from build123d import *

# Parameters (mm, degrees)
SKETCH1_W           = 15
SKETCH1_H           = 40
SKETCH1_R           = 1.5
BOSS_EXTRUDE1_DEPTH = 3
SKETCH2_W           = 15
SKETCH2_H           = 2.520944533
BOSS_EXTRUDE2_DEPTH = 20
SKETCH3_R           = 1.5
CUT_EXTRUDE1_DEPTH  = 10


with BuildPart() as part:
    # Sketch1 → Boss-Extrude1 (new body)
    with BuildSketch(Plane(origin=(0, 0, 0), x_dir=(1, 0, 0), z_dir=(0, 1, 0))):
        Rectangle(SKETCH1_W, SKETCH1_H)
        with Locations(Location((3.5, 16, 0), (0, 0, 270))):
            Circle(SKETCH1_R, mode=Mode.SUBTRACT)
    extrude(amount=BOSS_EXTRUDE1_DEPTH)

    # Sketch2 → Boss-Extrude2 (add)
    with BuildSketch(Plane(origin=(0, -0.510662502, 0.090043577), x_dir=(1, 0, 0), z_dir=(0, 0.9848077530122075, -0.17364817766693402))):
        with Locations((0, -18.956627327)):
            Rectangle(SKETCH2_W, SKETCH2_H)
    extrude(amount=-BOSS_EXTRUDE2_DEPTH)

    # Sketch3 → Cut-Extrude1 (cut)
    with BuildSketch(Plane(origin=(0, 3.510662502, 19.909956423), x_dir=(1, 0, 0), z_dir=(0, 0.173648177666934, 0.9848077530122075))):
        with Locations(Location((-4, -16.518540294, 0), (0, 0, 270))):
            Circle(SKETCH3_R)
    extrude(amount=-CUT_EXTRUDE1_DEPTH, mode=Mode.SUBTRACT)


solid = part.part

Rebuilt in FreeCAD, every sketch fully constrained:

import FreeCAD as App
import Part
import Sketcher
Q = App.Units.Quantity


def add_polygon(sketch, points):
    """Adds a closed chain of lines whose ends are joined by coincident constraints."""
    first, n = sketch.GeometryCount, len(points)
    for a, b in zip(points, points[1:] + points[:1]):
        sketch.addGeometry(Part.LineSegment(App.Vector(*a, 0), App.Vector(*b, 0)), False)
    for i in range(n):
        sketch.addConstraint(Sketcher.Constraint("Coincident", first + i, 2, first + (i + 1) % n, 1))

doc = App.newDocument("Part")
body = doc.addObject("PartDesign::Body", "Body")

# Sketch on XZ plane
sketch1 = doc.addObject("Sketcher::SketchObject", "Sketch")
body.addObject(sketch1)
sketch1.AttachmentSupport = (doc.XZ_Plane, [""])
sketch1.MapMode = "FlatFace"
add_polygon(sketch1, [(-7.5, -20), (-7.5, 20), (7.5, 20), (7.5, -20)])  # lines 0-3
sketch1.addGeometry(Part.Circle(App.Vector(3.5, -16, 0), App.Vector(0, 0, 1), 1.5), False)  # 4
sketch1.addConstraint([
    Sketcher.Constraint("Vertical", 0),
    Sketcher.Constraint("Horizontal", 1),
    Sketcher.Constraint("Vertical", 2),
    Sketcher.Constraint("Horizontal", 3),
    Sketcher.Constraint("Symmetric", 0, 2, 2, 2, -1, 1),
    Sketcher.Constraint("Diameter", 4, Q("3 mm")),
    Sketcher.Constraint("DistanceX", 1, 1, 1, 2, Q("15 mm")),
    Sketcher.Constraint("DistanceY", 0, 1, 0, 2, Q("40 mm")),
    Sketcher.Constraint("DistanceY", 4, 3, -1, 1, Q("16 mm")),
    Sketcher.Constraint("DistanceX", 0, 2, 4, 3, Q("11 mm")),
])
pad1 = doc.addObject("PartDesign::Pad", "Pad")
body.addObject(pad1)
pad1.Profile = sketch1
pad1.Length = 3
pad1.Reversed = True

# Sketch on an angled plane
sketch2 = doc.addObject("Sketcher::SketchObject", "Sketch001")
body.addObject(sketch2)
sketch2.Placement = App.Placement(App.Vector(0, -0.510663, 0.090044), App.Rotation(App.Vector(1, 0, 0), App.Vector(0, -0.173648178, -0.984807753), App.Vector(0, 0.984807753, -0.173648178), "ZXY"))
add_polygon(sketch2, [(-7.5, -17.7), (-7.5, -20.2), (7.5, -20.2), (7.5, -17.7)])  # lines 0-3
sketch2.addConstraint([
    Sketcher.Constraint("Vertical", 0),
    Sketcher.Constraint("Horizontal", 1),
    Sketcher.Constraint("Vertical", 2),
    Sketcher.Constraint("Horizontal", 3),
    Sketcher.Constraint("DistanceX", 1, 1, 1, 2, Q("15 mm")),
    Sketcher.Constraint("DistanceX", 0, 2, -1, 1, Q("7.5 mm")),
    Sketcher.Constraint("DistanceY", 0, 2, -1, 1, Q("20.2171 mm")),
    Sketcher.Constraint("DistanceY", 0, 2, 0, 1, Q("2.520945 mm")),
])
pad2 = doc.addObject("PartDesign::Pad", "Pad001")
body.addObject(pad2)
pad2.Profile = sketch2
pad2.Length = 20
pad2.Reversed = True

# Sketch on an angled plane
sketch3 = doc.addObject("Sketcher::SketchObject", "Sketch002")
body.addObject(sketch3)
sketch3.Placement = App.Placement(App.Vector(0, 3.510663, 19.909956), App.Rotation(App.Vector(1, 0, 0), App.Vector(0, 0.984807753, -0.173648178), App.Vector(0, 0.173648178, 0.984807753), "ZXY"))
sketch3.addGeometry(Part.Circle(App.Vector(-4, -16.5, 0), App.Vector(0, 0, 1), 1.5), False)
sketch3.addConstraint([
    Sketcher.Constraint("Diameter", 0, Q("3 mm")),
    Sketcher.Constraint("DistanceX", 0, 3, -1, 1, Q("4 mm")),
    Sketcher.Constraint("DistanceY", 0, 3, -1, 1, Q("16.51854 mm")),
])
pocket1 = doc.addObject("PartDesign::Pocket", "Pocket")
body.addObject(pocket1)
pocket1.Profile = sketch3
pocket1.Length = 10

doc.recompute()
